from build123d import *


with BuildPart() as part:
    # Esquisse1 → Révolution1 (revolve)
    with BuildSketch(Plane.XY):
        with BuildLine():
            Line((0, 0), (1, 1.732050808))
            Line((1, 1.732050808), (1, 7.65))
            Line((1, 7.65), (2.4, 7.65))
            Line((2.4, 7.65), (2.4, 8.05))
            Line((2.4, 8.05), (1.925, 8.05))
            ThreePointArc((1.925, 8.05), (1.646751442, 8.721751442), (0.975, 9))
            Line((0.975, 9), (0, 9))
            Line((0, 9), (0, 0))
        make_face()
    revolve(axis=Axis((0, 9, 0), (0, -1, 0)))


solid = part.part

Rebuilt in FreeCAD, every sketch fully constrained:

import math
import FreeCAD as App
import Part
import Sketcher
from FreeCAD import Vector
Q = App.Units.Quantity

doc = App.newDocument("Part")
body = doc.addObject("PartDesign::Body", "Body")

sketch1 = body.newObject("Sketcher::SketchObject", "Sketch")
sketch1.AttachmentSupport = (doc.getObject("XY_Plane"), [""])
sketch1.MapMode = "FlatFace"
sketch1.addGeometry([
    Part.LineSegment(Vector(0, 0, 0), Vector(1, 1.73, 0)),
    Part.LineSegment(Vector(1, 1.73, 0), Vector(1, 7.65, 0)),
    Part.LineSegment(Vector(1, 7.65, 0), Vector(2.4, 7.65, 0)),
    Part.LineSegment(Vector(2.4, 7.65, 0), Vector(2.4, 8.05, 0)),
    Part.LineSegment(Vector(2.4, 8.05, 0), Vector(1.93, 8.05, 0)),
    Part.ArcOfCircle(Part.Circle(Vector(0.97, 8.05, 0), Vector(0, 0, 1), 0.95), math.radians(0), math.radians(90)),
    Part.LineSegment(Vector(0.97, 9, 0), Vector(0, 9, 0)),
    Part.LineSegment(Vector(0, 9, 0), Vector(0, 0, 0)),
], False)
sketch1.addConstraint([
    Sketcher.Constraint("Coincident", 0, 2, 1, 1),
    Sketcher.Constraint("Coincident", 1, 2, 2, 1),
    Sketcher.Constraint("Coincident", 2, 2, 3, 1),
    Sketcher.Constraint("Coincident", 3, 2, 4, 1),
    Sketcher.Constraint("Coincident", 4, 2, 5, 1),
    Sketcher.Constraint("Tangent", 5, 2, 6, 1),
    Sketcher.Constraint("Coincident", 6, 2, 7, 1),
    Sketcher.Constraint("Coincident", 7, 2, 0, 1),
    Sketcher.Constraint("Vertical", 1),
    Sketcher.Constraint("Horizontal", 2),
    Sketcher.Constraint("Vertical", 3),
    Sketcher.Constraint("Horizontal", 4),
    Sketcher.Constraint("Horizontal", 6),
    Sketcher.Constraint("Vertical", 7),
    Sketcher.Constraint("Coincident", 7, 2, -1, 1),
    Sketcher.Constraint("Horizontal", 5, 3, 3, 2),
    Sketcher.Constraint("DistanceY", 7, 2, 7, 1, Q("9 mm")),
    Sketcher.Constraint("Angle", 0, Q("60 deg")),
    Sketcher.Constraint("Radius", 5, Q("0.95 mm")),
    Sketcher.Constraint("Distance", 0, Q("2 mm")),
    Sketcher.Constraint("DistanceX", 2, 1, 2, 2, Q("1.4 mm")),
    Sketcher.Constraint("DistanceY", 3, 1, 3, 2, Q("0.4 mm")),
    Sketcher.Constraint("DistanceX", 4, 2, 4, 1, Q("0.475 mm")),
])
revolution = body.newObject("PartDesign::Revolution", "Revolution")
revolution.Profile = sketch1
revolution.ReferenceAxis = (sketch1, ["V_Axis"])
revolution.Angle = 360

doc.recompute()
